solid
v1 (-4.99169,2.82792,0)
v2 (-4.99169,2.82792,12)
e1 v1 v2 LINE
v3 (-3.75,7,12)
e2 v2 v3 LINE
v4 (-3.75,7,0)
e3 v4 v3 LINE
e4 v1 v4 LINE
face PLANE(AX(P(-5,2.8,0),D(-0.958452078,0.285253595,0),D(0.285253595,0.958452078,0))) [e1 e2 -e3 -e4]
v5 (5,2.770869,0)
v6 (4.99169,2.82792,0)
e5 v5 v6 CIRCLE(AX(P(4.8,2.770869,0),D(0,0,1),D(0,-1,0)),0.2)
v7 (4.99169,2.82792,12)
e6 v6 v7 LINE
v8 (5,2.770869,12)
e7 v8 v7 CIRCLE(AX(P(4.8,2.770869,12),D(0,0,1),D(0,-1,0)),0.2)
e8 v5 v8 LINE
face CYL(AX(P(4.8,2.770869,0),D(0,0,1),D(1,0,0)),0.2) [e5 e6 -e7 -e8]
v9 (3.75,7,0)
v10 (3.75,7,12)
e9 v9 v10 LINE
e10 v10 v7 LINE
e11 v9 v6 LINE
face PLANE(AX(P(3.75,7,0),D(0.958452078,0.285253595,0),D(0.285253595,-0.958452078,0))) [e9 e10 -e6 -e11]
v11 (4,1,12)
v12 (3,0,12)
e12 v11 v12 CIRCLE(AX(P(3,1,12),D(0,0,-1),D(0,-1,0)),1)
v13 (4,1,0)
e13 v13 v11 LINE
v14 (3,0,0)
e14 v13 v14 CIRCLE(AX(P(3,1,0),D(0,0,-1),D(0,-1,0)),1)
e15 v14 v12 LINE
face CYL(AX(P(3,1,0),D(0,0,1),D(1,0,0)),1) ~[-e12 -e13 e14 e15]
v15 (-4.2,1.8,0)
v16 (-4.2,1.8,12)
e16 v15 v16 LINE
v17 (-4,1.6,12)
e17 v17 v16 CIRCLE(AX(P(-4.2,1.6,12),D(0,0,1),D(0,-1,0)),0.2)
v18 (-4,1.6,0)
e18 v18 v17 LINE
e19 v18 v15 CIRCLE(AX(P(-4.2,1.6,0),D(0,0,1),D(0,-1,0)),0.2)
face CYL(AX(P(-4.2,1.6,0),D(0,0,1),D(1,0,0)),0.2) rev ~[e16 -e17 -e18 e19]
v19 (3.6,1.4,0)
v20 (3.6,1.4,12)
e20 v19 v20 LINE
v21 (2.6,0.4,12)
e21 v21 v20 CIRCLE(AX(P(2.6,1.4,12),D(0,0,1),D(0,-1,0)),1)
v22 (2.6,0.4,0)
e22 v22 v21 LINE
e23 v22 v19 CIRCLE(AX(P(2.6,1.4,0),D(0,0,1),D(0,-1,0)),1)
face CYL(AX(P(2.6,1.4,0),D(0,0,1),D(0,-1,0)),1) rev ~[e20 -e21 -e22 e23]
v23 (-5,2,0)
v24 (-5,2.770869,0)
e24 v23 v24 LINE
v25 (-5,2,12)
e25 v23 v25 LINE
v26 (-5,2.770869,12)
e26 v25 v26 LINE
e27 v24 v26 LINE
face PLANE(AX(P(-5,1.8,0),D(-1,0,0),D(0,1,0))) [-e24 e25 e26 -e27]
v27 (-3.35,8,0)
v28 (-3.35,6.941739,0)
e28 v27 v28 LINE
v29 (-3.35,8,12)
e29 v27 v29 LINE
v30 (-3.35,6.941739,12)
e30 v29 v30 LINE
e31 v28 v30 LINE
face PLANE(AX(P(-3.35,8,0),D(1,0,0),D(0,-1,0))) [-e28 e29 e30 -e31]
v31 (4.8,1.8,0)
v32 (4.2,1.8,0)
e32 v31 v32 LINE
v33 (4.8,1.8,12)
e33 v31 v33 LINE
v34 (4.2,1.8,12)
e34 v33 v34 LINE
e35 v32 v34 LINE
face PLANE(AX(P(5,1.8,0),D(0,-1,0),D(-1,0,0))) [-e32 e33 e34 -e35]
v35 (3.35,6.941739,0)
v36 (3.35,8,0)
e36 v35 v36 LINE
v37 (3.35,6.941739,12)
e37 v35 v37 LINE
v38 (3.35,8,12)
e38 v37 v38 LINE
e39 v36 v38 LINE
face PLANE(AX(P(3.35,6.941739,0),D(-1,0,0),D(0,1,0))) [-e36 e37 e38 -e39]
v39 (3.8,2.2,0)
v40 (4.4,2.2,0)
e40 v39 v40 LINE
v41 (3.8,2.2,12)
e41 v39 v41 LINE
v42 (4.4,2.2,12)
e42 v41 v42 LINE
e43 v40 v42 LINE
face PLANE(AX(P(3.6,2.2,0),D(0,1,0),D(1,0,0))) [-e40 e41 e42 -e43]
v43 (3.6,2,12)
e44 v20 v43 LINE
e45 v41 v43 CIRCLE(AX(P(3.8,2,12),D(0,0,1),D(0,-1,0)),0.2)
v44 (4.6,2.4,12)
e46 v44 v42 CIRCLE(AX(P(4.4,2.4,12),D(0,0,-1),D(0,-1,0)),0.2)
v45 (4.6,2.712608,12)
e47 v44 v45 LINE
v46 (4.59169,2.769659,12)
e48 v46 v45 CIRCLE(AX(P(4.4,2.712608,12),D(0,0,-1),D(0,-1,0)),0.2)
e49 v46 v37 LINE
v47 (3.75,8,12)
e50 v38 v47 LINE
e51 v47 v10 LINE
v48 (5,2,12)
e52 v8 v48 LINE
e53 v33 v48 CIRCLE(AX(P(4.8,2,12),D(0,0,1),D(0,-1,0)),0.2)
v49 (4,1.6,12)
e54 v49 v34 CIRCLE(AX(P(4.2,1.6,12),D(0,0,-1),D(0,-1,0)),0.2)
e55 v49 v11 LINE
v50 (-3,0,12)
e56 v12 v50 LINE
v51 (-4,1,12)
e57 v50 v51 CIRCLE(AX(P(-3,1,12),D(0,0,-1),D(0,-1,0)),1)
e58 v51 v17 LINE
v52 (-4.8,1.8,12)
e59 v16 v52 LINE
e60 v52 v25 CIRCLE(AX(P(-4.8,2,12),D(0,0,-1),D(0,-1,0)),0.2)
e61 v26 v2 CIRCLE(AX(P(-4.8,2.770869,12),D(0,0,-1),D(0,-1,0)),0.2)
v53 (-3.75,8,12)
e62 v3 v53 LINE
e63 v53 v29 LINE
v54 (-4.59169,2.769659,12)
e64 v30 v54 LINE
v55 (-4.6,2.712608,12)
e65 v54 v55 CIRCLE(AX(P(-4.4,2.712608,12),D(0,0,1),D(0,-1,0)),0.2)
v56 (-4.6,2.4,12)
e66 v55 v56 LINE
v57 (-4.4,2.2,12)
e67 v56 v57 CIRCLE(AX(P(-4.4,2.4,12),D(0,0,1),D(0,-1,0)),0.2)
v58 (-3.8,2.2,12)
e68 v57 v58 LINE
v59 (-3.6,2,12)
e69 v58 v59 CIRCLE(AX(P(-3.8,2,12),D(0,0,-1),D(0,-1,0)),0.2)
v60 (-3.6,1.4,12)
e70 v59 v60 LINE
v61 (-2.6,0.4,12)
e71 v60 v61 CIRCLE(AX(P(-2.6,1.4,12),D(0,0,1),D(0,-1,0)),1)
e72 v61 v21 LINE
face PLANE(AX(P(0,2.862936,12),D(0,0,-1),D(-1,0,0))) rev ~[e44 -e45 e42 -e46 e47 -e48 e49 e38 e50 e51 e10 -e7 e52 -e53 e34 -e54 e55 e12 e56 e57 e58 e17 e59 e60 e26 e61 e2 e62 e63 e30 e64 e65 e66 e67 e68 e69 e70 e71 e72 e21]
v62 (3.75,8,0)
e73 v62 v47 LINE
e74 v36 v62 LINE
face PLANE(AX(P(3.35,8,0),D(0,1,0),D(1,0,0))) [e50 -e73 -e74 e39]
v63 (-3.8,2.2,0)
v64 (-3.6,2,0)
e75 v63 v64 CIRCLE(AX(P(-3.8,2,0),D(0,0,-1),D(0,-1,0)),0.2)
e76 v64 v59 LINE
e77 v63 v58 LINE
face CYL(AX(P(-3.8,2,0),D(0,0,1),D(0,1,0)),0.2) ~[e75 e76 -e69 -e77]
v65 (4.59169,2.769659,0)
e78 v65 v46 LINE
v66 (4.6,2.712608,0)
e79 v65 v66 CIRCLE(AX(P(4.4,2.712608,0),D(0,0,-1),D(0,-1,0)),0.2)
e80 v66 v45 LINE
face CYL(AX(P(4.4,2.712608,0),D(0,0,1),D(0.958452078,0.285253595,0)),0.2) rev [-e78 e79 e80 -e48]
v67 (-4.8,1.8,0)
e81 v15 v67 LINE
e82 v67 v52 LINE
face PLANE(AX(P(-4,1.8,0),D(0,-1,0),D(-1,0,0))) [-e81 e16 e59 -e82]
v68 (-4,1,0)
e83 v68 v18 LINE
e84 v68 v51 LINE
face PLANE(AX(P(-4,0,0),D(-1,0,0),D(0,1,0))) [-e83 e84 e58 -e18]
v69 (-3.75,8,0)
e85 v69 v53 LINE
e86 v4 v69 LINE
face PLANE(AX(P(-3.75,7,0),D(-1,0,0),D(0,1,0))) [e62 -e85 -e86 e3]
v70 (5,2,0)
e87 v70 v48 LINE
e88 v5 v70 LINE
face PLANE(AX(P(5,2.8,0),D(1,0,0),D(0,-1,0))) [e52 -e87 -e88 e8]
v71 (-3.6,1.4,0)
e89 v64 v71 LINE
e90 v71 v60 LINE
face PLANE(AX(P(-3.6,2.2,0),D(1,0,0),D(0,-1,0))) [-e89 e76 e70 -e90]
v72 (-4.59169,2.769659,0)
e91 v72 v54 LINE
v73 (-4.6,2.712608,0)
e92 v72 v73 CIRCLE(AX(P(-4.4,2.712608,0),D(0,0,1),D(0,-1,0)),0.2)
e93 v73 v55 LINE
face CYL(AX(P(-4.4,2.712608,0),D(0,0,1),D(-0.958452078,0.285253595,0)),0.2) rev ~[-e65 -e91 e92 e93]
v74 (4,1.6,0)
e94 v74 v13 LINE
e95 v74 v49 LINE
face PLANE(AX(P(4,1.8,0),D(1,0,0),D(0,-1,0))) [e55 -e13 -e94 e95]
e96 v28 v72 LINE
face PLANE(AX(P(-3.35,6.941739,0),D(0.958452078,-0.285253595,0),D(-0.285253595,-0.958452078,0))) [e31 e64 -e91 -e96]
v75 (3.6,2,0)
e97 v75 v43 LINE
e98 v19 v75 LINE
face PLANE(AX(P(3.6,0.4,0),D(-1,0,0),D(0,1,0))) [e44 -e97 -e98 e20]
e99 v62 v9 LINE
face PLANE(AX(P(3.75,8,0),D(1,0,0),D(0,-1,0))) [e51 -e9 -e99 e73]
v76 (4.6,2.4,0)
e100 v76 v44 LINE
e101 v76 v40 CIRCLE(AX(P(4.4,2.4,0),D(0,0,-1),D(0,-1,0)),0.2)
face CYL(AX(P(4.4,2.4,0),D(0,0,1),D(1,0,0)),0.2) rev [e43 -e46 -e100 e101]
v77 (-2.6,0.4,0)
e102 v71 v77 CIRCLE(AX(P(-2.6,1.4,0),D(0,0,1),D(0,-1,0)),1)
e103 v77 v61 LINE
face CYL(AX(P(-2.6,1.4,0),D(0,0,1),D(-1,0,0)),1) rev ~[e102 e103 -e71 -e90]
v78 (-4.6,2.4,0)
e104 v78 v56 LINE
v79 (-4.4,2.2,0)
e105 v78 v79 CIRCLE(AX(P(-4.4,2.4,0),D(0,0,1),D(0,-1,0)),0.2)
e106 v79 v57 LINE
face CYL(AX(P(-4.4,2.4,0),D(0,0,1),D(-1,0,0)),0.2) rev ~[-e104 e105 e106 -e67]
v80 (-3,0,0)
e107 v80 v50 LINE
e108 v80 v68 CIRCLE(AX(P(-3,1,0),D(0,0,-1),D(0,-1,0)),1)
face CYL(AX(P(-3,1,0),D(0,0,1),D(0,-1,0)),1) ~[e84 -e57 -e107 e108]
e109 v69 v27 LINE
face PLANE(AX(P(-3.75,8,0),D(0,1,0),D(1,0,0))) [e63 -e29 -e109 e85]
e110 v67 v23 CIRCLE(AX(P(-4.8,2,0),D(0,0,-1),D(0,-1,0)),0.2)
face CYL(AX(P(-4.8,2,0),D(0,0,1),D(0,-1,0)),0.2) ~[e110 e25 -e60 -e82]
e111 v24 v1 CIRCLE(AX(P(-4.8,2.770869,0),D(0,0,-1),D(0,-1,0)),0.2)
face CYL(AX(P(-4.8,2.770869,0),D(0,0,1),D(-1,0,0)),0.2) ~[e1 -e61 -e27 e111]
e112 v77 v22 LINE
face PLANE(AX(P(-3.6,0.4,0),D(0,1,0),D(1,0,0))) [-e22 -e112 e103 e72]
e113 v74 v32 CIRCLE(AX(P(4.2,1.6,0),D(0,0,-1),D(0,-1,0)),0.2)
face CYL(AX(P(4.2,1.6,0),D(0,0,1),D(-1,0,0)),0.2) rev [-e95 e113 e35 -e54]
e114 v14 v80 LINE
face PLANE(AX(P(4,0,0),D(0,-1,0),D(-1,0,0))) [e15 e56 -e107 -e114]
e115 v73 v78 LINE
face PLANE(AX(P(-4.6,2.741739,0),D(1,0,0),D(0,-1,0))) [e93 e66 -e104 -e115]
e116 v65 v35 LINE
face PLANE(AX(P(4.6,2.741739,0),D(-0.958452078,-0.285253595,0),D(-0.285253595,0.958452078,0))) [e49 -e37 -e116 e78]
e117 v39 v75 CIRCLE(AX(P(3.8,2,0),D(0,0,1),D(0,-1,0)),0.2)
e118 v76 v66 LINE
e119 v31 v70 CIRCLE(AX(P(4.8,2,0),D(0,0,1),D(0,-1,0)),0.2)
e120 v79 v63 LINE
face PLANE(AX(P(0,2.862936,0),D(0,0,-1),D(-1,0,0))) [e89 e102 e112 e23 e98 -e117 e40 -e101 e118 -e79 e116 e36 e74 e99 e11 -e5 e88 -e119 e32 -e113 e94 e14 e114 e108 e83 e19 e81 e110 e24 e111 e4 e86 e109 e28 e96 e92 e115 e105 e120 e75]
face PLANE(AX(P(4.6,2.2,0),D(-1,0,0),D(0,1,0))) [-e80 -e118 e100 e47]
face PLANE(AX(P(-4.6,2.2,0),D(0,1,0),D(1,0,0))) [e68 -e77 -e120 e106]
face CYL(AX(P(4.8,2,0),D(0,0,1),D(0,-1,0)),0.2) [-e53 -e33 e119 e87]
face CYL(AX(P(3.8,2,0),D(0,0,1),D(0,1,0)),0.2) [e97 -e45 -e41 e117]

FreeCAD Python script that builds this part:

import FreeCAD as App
import Part
import Sketcher

V = App.Vector


def edges_at(feature, points):
    """Names of the edges that pass closest to the given points."""
    edges = feature.Shape.Edges
    near = lambda p: min(range(len(edges)), key=lambda i: edges[i].distToShape(Part.Vertex(*p))[0])
    return sorted({f"Edge{near(p) + 1}" for p in points})

doc = App.newDocument("Part")
params = doc.addObject("Spreadsheet::Sheet", "Params")
for row, (alias, value) in enumerate([
    ("sketch1_width", "1 mm"),
    ("sketch1_width2", "8 mm"),
    ("sketch1_width3", "0.4 mm"),
    ("sketch1_height", "1.8 mm"),
    ("pad1_length", "12 mm"),
    ("fillet_radius", "1 mm"),
    ("fillet2_radius", "0.2 mm"),
], start=1):
    params.set(f"A{row}", alias)
    params.set(f"B{row}", "=" + value)
    params.setAlias(f"B{row}", alias)

body = doc.addObject("PartDesign::Body", "Body")

# Sketch on XY plane
sketch1 = body.newObject("Sketcher::SketchObject", "Sketch")
sketch1.AttachmentSupport = (doc.getObject("XY_Plane"), [""])
sketch1.MapMode = "FlatFace"
sketch1.addGeometry(Part.LineSegment(V(3.75, 7, 0), V(3.75, 8, 0)), False)
sketch1.addGeometry(Part.LineSegment(V(3.75, 8, 0), V(3.35, 8, 0)), False)
sketch1.addGeometry(Part.LineSegment(V(3.35, 8, 0), V(3.35, 6.94, 0)), False)
sketch1.addGeometry(Part.LineSegment(V(3.35, 6.94, 0), V(4.6, 2.74, 0)), False)
sketch1.addGeometry(Part.LineSegment(V(4.6, 2.74, 0), V(4.6, 2.2, 0)), False)
sketch1.addGeometry(Part.LineSegment(V(4.6, 2.2, 0), V(3.6, 2.2, 0)), False)
sketch1.addGeometry(Part.LineSegment(V(3.6, 2.2, 0), V(3.6, 0.4, 0)), False)
sketch1.addGeometry(Part.LineSegment(V(3.6, 0.4, 0), V(-3.6, 0.4, 0)), False)
sketch1.addGeometry(Part.LineSegment(V(-3.6, 0.4, 0), V(-3.6, 2.2, 0)), False)
sketch1.addGeometry(Part.LineSegment(V(-3.6, 2.2, 0), V(-4.6, 2.2, 0)), False)
sketch1.addGeometry(Part.LineSegment(V(-4.6, 2.2, 0), V(-4.6, 2.74, 0)), False)
sketch1.addGeometry(Part.LineSegment(V(-4.6, 2.74, 0), V(-3.35, 6.94, 0)), False)
sketch1.addGeometry(Part.LineSegment(V(-3.35, 6.94, 0), V(-3.35, 8, 0)), False)
sketch1.addGeometry(Part.LineSegment(V(-3.35, 8, 0), V(-3.75, 8, 0)), False)
sketch1.addGeometry(Part.LineSegment(V(-3.75, 8, 0), V(-3.75, 7, 0)), False)
sketch1.addGeometry(Part.LineSegment(V(-3.75, 7, 0), V(-5, 2.8, 0)), False)
sketch1.addGeometry(Part.LineSegment(V(-5, 2.8, 0), V(-5, 1.8, 0)), False)
sketch1.addGeometry(Part.LineSegment(V(-5, 1.8, 0), V(-4, 1.8, 0)), False)
sketch1.addGeometry(Part.LineSegment(V(-4, 1.8, 0), V(-4, 0, 0)), False)
sketch1.addGeometry(Part.LineSegment(V(-4, 0, 0), V(4, 0, 0)), False)
sketch1.addGeometry(Part.LineSegment(V(4, 0, 0), V(4, 1.8, 0)), False)
sketch1.addGeometry(Part.LineSegment(V(4, 1.8, 0), V(5, 1.8, 0)), False)
sketch1.addGeometry(Part.LineSegment(V(5, 1.8, 0), V(5, 2.8, 0)), False)
sketch1.addGeometry(Part.LineSegment(V(5, 2.8, 0), V(3.75, 7, 0)), False)
sketch1.addConstraint(Sketcher.Constraint("Coincident", 0, 2, 1, 1))
sketch1.addConstraint(Sketcher.Constraint("Coincident", 1, 2, 2, 1))
sketch1.addConstraint(Sketcher.Constraint("Coincident", 2, 2, 3, 1))
sketch1.addConstraint(Sketcher.Constraint("Coincident", 3, 2, 4, 1))
sketch1.addConstraint(Sketcher.Constraint("Coincident", 4, 2, 5, 1))
sketch1.addConstraint(Sketcher.Constraint("Coincident", 5, 2, 6, 1))
sketch1.addConstraint(Sketcher.Constraint("Coincident", 6, 2, 7, 1))
sketch1.addConstraint(Sketcher.Constraint("Coincident", 7, 2, 8, 1))
sketch1.addConstraint(Sketcher.Constraint("Coincident", 8, 2, 9, 1))
sketch1.addConstraint(Sketcher.Constraint("Coincident", 9, 2, 10, 1))
sketch1.addConstraint(Sketcher.Constraint("Coincident", 10, 2, 11, 1))
sketch1.addConstraint(Sketcher.Constraint("Coincident", 11, 2, 12, 1))
sketch1.addConstraint(Sketcher.Constraint("Coincident", 12, 2, 13, 1))
sketch1.addConstraint(Sketcher.Constraint("Coincident", 13, 2, 14, 1))
sketch1.addConstraint(Sketcher.Constraint("Coincident", 14, 2, 15, 1))
sketch1.addConstraint(Sketcher.Constraint("Coincident", 15, 2, 16, 1))
sketch1.addConstraint(Sketcher.Constraint("Coincident", 16, 2, 17, 1))
sketch1.addConstraint(Sketcher.Constraint("Coincident", 17, 2, 18, 1))
sketch1.addConstraint(Sketcher.Constraint("Coincident", 18, 2, 19, 1))
sketch1.addConstraint(Sketcher.Constraint("Coincident", 19, 2, 20, 1))
sketch1.addConstraint(Sketcher.Constraint("Coincident", 20, 2, 21, 1))
sketch1.addConstraint(Sketcher.Constraint("Coincident", 21, 2, 22, 1))
sketch1.addConstraint(Sketcher.Constraint("Coincident", 22, 2, 23, 1))
sketch1.addConstraint(Sketcher.Constraint("Coincident", 23, 2, 0, 1))
sketch1.addConstraint(Sketcher.Constraint("Vertical", 0))
sketch1.addConstraint(Sketcher.Constraint("Horizontal", 1))
sketch1.addConstraint(Sketcher.Constraint("Vertical", 2))
sketch1.addConstraint(Sketcher.Constraint("Vertical", 4))
sketch1.addConstraint(Sketcher.Constraint("Horizontal", 5))
sketch1.addConstraint(Sketcher.Constraint("Vertical", 6))
sketch1.addConstraint(Sketcher.Constraint("Horizontal", 7))
sketch1.addConstraint(Sketcher.Constraint("Vertical", 8))
sketch1.addConstraint(Sketcher.Constraint("Horizontal", 9))
sketch1.addConstraint(Sketcher.Constraint("Vertical", 10))
sketch1.addConstraint(Sketcher.Constraint("Vertical", 12))
sketch1.addConstraint(Sketcher.Constraint("Horizontal", 13))
sketch1.addConstraint(Sketcher.Constraint("Vertical", 14))
sketch1.addConstraint(Sketcher.Constraint("Vertical", 16))
sketch1.addConstraint(Sketcher.Constraint("Horizontal", 17))
sketch1.addConstraint(Sketcher.Constraint("Vertical", 18))
sketch1.addConstraint(Sketcher.Constraint("Horizontal", 19))
sketch1.addConstraint(Sketcher.Constraint("Vertical", 20))
sketch1.addConstraint(Sketcher.Constraint("Horizontal", 21))
sketch1.addConstraint(Sketcher.Constraint("Vertical", 22))
sketch1.addConstraint(Sketcher.Constraint("Symmetric", 18, 2, 19, 2, -1, 1))
sketch1.addConstraint(Sketcher.Constraint("Symmetric", 5, 2, 8, 2, -2))
sketch1.addConstraint(Sketcher.Constraint("Symmetric", 3, 2, 10, 2, -2))
sketch1.addConstraint(Sketcher.Constraint("Symmetric", 2, 2, 11, 2, -2))
sketch1.addConstraint(Sketcher.Constraint("Symmetric", 0, 2, 13, 2, -2))
sketch1.addConstraint(Sketcher.Constraint("Symmetric", 16, 2, 21, 2, -2))
sketch1.addConstraint(Sketcher.Constraint("Parallel", 11, 15))
sketch1.addConstraint(Sketcher.Constraint("Parallel", 3, 23))
sketch1.addConstraint(Sketcher.Constraint("Horizontal", 15, 2, 22, 2))
sketch1.addConstraint(Sketcher.Constraint("Equal", 9, 17))
sketch1.addConstraint(Sketcher.Constraint("Equal", 21, 0))
sketch1.addConstraint(Sketcher.Constraint("Equal", 14, 16))
sketch1.addConstraint(Sketcher.Constraint("Equal", 8, 18))
sketch1.addConstraint(Sketcher.Constraint("Equal", 11, 15))
sketch1.addConstraint(Sketcher.Constraint("DistanceX", 5, 2, 5, 1, 1.0))
sketch1.addConstraint(Sketcher.Constraint("DistanceX", 19, 1, 19, 2, 8.0))
sketch1.addConstraint(Sketcher.Constraint("DistanceX", 1, 2, 1, 1, 0.4))
sketch1.addConstraint(Sketcher.Constraint("DistanceY", 6, 2, 6, 1, 1.8))
sketch1.addConstraint(Sketcher.Constraint("DistanceY", -1, 1, 0, 2, 8.0))
sketch1.addConstraint(Sketcher.Constraint("DistanceY", -1, 1, 4, 2, 2.2))
sketch1.addConstraint(Sketcher.Constraint("DistanceX", 11, 2, 2, 2, 6.7))
sketch1.addConstraint(Sketcher.Constraint("DistanceY", 2, 2, 2, 1, 1.058261))
sketch1.setExpression("Constraints[58]", "Params.sketch1_width")
sketch1.setExpression("Constraints[59]", "Params.sketch1_width2")
sketch1.setExpression("Constraints[60]", "Params.sketch1_width3")
sketch1.setExpression("Constraints[61]", "Params.sketch1_height")
pad1 = body.newObject("PartDesign::Pad", "Pad")
pad1.Profile = sketch1
pad1.setExpression("Length", "Params.pad1_length")
doc.recompute()

fillet = body.newObject("PartDesign::Fillet", "Fillet")
fillet.Base = (pad1, edges_at(pad1, [
    (4, 0, 6),
    (-4, 0, 6),
    (-3.6, 0.4, 6),
    (3.6, 0.4, 6),
]))
fillet.setExpression("Radius", "Params.fillet_radius")
doc.recompute()

fillet2 = body.newObject("PartDesign::Fillet", "Fillet001")
fillet2.Base = (fillet, edges_at(fillet, [
    (5, 2.8, 6),
    (5, 1.8, 6),
    (4, 1.8, 6),
    (-4, 1.8, 6),
    (-5, 1.8, 6),
    (-5, 2.8, 6),
    (-4.6, 2.742, 6),
    (-4.6, 2.2, 6),
    (-3.6, 2.2, 6),
    (3.6, 2.2, 6),
    (4.6, 2.2, 6),
    (4.6, 2.742, 6),
]))
fillet2.setExpression("Radius", "Params.fillet2_radius")

doc.recompute()
